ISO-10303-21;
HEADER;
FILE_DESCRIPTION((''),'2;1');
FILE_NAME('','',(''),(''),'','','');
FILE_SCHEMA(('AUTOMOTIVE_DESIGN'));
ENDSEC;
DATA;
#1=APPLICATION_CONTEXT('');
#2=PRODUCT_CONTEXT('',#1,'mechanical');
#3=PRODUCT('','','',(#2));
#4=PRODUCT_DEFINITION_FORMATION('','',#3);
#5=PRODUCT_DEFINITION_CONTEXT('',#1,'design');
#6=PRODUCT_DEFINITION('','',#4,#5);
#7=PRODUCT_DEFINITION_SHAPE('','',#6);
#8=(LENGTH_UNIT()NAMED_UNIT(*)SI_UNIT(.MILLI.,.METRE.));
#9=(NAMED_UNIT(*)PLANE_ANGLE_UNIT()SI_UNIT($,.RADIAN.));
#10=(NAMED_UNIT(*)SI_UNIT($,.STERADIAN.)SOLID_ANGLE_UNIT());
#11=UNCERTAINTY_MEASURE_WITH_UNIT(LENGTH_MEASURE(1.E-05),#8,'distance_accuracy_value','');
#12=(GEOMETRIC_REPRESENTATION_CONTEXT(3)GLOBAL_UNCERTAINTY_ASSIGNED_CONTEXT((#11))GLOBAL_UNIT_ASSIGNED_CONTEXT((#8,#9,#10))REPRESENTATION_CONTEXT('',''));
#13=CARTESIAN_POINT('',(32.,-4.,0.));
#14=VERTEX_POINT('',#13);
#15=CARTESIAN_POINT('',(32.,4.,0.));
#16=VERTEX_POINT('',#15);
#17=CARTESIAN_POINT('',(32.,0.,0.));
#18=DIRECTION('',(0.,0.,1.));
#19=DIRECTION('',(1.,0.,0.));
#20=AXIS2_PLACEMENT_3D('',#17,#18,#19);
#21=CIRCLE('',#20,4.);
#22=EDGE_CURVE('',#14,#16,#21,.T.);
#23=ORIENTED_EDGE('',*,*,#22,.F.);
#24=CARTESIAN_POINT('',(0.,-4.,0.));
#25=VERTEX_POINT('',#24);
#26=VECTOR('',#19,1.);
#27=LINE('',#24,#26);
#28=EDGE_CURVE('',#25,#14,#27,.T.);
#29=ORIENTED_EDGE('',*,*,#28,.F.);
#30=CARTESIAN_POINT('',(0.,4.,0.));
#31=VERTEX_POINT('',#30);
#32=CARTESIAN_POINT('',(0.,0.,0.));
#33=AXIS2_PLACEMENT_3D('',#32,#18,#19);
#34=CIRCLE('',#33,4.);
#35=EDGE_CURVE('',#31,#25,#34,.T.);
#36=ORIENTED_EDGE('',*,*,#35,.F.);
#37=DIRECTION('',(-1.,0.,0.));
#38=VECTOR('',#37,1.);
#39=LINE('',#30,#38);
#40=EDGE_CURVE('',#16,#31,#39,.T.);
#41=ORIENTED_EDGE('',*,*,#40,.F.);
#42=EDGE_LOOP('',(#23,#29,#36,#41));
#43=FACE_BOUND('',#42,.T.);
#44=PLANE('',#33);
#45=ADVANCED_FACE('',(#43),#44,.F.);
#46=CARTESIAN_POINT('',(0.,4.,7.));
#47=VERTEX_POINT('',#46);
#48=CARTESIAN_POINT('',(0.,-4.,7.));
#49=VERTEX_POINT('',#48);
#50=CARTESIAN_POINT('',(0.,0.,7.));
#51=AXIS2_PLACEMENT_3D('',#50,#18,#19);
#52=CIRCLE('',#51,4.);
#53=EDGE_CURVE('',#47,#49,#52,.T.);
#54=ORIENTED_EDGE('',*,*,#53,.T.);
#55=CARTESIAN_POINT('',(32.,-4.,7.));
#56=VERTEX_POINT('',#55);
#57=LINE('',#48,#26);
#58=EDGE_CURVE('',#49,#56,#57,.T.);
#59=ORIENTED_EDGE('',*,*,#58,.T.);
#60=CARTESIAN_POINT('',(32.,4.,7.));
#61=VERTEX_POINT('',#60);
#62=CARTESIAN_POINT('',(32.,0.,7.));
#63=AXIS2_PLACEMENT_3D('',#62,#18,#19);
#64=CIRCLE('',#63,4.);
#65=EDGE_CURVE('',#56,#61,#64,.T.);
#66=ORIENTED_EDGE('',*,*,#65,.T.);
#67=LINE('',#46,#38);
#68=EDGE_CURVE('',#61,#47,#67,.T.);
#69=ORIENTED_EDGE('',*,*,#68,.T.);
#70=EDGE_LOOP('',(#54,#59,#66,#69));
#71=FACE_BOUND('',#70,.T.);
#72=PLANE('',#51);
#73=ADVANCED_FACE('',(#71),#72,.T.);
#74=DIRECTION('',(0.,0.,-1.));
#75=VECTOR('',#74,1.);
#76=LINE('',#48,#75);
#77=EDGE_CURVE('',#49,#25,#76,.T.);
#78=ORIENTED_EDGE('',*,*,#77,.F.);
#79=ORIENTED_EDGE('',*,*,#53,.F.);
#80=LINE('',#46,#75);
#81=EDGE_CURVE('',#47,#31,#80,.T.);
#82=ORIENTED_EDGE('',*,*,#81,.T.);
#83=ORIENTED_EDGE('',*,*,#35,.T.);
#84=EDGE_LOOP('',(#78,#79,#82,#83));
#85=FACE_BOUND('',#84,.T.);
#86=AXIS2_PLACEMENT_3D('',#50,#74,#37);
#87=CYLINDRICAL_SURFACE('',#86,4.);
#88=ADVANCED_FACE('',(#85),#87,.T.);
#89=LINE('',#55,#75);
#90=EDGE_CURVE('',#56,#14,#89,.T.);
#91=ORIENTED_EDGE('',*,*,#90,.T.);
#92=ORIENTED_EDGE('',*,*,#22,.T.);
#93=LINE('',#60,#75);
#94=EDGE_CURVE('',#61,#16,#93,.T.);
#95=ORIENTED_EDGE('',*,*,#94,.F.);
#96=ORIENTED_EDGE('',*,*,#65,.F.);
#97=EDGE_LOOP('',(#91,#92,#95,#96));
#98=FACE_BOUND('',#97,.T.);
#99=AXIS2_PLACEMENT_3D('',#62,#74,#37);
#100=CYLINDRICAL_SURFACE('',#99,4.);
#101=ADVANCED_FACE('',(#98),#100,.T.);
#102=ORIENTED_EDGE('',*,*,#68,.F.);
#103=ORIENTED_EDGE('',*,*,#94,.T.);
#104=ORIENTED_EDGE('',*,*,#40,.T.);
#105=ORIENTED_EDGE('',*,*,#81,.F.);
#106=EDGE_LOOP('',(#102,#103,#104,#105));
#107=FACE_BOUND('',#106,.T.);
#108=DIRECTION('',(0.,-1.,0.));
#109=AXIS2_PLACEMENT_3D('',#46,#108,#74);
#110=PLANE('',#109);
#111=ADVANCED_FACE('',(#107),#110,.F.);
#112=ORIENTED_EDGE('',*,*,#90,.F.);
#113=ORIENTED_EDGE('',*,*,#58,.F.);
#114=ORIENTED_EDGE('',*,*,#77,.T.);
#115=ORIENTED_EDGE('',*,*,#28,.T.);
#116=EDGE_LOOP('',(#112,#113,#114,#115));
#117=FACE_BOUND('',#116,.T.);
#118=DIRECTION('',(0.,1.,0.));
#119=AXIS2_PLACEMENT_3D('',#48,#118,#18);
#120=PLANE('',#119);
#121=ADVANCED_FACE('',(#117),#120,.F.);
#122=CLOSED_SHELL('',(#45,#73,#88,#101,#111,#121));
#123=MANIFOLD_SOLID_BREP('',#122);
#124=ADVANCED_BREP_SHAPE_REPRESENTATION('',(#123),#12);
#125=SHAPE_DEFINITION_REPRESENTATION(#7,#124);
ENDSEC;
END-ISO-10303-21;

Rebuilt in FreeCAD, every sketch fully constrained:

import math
import FreeCAD as App
import Part
import Sketcher

V = App.Vector

doc = App.newDocument("Part")
body = doc.addObject("PartDesign::Body", "Body")

# Sketch on XY plane
sketch1 = body.newObject("Sketcher::SketchObject", "Sketch")
sketch1.AttachmentSupport = (doc.getObject("XY_Plane"), [""])
sketch1.MapMode = "FlatFace"
sketch1.addGeometry(Part.LineSegment(V(32, 4, 0), V(0, 4, 0)), False)
sketch1.addGeometry(Part.ArcOfCircle(Part.Circle(V(0, 0, 0), V(0, 0, 1), 4), math.radians(90), math.radians(270)), False)
sketch1.addGeometry(Part.LineSegment(V(0, -4, 0), V(32, -4, 0)), False)
sketch1.addGeometry(Part.ArcOfCircle(Part.Circle(V(32, 0, 0), V(0, 0, 1), 4), math.radians(-90), math.radians(90)), False)
sketch1.addConstraint(Sketcher.Constraint("Tangent", 0, 2, 1, 1))
sketch1.addConstraint(Sketcher.Constraint("Tangent", 1, 2, 2, 1))
sketch1.addConstraint(Sketcher.Constraint("Tangent", 2, 2, 3, 1))
sketch1.addConstraint(Sketcher.Constraint("Tangent", 3, 2, 0, 1))
sketch1.addConstraint(Sketcher.Constraint("Horizontal", 0))
sketch1.addConstraint(Sketcher.Constraint("Horizontal", 2))
sketch1.addConstraint(Sketcher.Constraint("Coincident", 1, 3, -1, 1))
sketch1.addConstraint(Sketcher.Constraint("Radius", 1, 4.0))
sketch1.addConstraint(Sketcher.Constraint("DistanceX", 0, 2, 0, 1, 32.0))
pad1 = body.newObject("PartDesign::Pad", "Pad")
pad1.Profile = sketch1
pad1.Length = 7

doc.recompute()
